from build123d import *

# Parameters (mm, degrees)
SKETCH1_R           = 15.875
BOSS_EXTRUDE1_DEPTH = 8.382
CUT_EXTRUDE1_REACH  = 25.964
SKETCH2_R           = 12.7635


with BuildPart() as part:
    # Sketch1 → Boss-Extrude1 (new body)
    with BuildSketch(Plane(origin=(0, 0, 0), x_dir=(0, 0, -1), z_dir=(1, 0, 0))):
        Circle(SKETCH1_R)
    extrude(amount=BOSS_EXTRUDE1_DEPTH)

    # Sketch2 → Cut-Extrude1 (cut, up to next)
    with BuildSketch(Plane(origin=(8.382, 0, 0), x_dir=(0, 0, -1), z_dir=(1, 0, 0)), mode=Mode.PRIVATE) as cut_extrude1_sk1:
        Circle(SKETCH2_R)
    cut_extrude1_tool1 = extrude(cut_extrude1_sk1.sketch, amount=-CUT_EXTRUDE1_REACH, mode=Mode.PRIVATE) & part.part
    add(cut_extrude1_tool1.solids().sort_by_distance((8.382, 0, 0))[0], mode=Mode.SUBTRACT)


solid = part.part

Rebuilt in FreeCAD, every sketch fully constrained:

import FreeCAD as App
import Part
import Sketcher
Q = App.Units.Quantity

doc = App.newDocument("Part")
body = doc.addObject("PartDesign::Body", "Body")

sketch1 = doc.addObject("Sketcher::SketchObject", "Sketch")
body.addObject(sketch1)
sketch1.AttachmentSupport = (doc.YZ_Plane, [""])
sketch1.MapMode = "FlatFace"
sketch1.addGeometry(Part.Circle(App.Vector(0, 0, 0), App.Vector(0, 0, 1), 16), False)
sketch1.addConstraint([
    Sketcher.Constraint("Coincident", 0, 3, -1, 1),
    Sketcher.Constraint("Diameter", 0, Q("1.25 in")),
])
pad1 = doc.addObject("PartDesign::Pad", "Pad")
body.addObject(pad1)
pad1.Profile = sketch1
pad1.Length = Q("0.33 in")

sketch2 = doc.addObject("Sketcher::SketchObject", "Sketch001")
body.addObject(sketch2)
sketch2.AttachmentSupport = (doc.YZ_Plane, [""])
sketch2.MapMode = "FlatFace"
sketch2.AttachmentOffset = App.Placement(App.Vector(0, 0, 0.33 * 25.4), App.Rotation())
sketch2.addGeometry(Part.Circle(App.Vector(0, 0, 0), App.Vector(0, 0, 1), 13), False)
sketch2.addConstraint([
    Sketcher.Constraint("Coincident", 0, 3, -1, 1),
    Sketcher.Constraint("Diameter", 0, Q("1.005 in")),
])
pocket1 = doc.addObject("PartDesign::Pocket", "Pocket")
body.addObject(pocket1)
pocket1.Profile = sketch2
pocket1.Type = "UpToFirst"

doc.recompute()
